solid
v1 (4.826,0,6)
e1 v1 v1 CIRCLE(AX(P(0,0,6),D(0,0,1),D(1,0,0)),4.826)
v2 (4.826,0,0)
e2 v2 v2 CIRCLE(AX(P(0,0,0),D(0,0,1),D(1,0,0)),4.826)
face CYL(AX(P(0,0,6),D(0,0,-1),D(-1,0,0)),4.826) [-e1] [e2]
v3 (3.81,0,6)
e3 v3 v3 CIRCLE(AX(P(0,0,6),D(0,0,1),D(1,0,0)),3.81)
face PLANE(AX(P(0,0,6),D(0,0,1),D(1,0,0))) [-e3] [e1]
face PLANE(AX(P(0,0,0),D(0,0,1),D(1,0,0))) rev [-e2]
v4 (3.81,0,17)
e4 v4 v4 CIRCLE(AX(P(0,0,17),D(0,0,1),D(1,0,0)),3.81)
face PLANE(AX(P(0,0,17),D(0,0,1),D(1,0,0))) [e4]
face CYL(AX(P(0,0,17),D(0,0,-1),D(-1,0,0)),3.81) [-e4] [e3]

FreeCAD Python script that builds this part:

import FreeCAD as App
import Part
import Sketcher

V = App.Vector
Q = App.Units.Quantity

doc = App.newDocument("Part")
params = doc.addObject("Spreadsheet::Sheet", "Params")
for row, (alias, value) in enumerate([
    ("pad1_length", "6 mm"),
    ("sketch2_diameter", "7.62 mm"),
    ("pad2_length", "11 mm"),
], start=1):
    params.set(f"A{row}", alias)
    params.set(f"B{row}", "=" + value)
    params.setAlias(f"B{row}", alias)

body = doc.addObject("PartDesign::Body", "Body")

# Sketch on XY plane
sketch1 = body.newObject("Sketcher::SketchObject", "Sketch")
sketch1.AttachmentSupport = (doc.getObject("XY_Plane"), [""])
sketch1.MapMode = "FlatFace"
sketch1.addGeometry(Part.Circle(V(0, 0, 0), V(0, 0, 1), 4.8), False)
sketch1.addConstraint([
    Sketcher.Constraint("Coincident", 0, 3, -1, 1),
    Sketcher.Constraint("Diameter", 0, Q("9.652 mm")),
])
pad1 = body.newObject("PartDesign::Pad", "Pad")
pad1.Profile = sketch1
pad1.setExpression("Length", "Params.pad1_length")

# Sketch on XY plane
sketch2 = body.newObject("Sketcher::SketchObject", "Sketch001")
sketch2.AttachmentSupport = (doc.getObject("XY_Plane"), [""])
sketch2.MapMode = "FlatFace"
sketch2.AttachmentOffset = App.Placement(V(0, 0, 6), App.Rotation())
sketch2.addGeometry(Part.Circle(V(0, 0, 0), V(0, 0, 1), 3.8), False)
sketch2.addConstraint([
    Sketcher.Constraint("Coincident", 0, 3, -1, 1),
    Sketcher.Constraint("Diameter", 0, Q("7.62 mm")),
])
sketch2.setExpression("Constraints[1]", "Params.sketch2_diameter")
pad2 = body.newObject("PartDesign::Pad", "Pad001")
pad2.Profile = sketch2
pad2.setExpression("Length", "Params.pad2_length")

doc.recompute()
